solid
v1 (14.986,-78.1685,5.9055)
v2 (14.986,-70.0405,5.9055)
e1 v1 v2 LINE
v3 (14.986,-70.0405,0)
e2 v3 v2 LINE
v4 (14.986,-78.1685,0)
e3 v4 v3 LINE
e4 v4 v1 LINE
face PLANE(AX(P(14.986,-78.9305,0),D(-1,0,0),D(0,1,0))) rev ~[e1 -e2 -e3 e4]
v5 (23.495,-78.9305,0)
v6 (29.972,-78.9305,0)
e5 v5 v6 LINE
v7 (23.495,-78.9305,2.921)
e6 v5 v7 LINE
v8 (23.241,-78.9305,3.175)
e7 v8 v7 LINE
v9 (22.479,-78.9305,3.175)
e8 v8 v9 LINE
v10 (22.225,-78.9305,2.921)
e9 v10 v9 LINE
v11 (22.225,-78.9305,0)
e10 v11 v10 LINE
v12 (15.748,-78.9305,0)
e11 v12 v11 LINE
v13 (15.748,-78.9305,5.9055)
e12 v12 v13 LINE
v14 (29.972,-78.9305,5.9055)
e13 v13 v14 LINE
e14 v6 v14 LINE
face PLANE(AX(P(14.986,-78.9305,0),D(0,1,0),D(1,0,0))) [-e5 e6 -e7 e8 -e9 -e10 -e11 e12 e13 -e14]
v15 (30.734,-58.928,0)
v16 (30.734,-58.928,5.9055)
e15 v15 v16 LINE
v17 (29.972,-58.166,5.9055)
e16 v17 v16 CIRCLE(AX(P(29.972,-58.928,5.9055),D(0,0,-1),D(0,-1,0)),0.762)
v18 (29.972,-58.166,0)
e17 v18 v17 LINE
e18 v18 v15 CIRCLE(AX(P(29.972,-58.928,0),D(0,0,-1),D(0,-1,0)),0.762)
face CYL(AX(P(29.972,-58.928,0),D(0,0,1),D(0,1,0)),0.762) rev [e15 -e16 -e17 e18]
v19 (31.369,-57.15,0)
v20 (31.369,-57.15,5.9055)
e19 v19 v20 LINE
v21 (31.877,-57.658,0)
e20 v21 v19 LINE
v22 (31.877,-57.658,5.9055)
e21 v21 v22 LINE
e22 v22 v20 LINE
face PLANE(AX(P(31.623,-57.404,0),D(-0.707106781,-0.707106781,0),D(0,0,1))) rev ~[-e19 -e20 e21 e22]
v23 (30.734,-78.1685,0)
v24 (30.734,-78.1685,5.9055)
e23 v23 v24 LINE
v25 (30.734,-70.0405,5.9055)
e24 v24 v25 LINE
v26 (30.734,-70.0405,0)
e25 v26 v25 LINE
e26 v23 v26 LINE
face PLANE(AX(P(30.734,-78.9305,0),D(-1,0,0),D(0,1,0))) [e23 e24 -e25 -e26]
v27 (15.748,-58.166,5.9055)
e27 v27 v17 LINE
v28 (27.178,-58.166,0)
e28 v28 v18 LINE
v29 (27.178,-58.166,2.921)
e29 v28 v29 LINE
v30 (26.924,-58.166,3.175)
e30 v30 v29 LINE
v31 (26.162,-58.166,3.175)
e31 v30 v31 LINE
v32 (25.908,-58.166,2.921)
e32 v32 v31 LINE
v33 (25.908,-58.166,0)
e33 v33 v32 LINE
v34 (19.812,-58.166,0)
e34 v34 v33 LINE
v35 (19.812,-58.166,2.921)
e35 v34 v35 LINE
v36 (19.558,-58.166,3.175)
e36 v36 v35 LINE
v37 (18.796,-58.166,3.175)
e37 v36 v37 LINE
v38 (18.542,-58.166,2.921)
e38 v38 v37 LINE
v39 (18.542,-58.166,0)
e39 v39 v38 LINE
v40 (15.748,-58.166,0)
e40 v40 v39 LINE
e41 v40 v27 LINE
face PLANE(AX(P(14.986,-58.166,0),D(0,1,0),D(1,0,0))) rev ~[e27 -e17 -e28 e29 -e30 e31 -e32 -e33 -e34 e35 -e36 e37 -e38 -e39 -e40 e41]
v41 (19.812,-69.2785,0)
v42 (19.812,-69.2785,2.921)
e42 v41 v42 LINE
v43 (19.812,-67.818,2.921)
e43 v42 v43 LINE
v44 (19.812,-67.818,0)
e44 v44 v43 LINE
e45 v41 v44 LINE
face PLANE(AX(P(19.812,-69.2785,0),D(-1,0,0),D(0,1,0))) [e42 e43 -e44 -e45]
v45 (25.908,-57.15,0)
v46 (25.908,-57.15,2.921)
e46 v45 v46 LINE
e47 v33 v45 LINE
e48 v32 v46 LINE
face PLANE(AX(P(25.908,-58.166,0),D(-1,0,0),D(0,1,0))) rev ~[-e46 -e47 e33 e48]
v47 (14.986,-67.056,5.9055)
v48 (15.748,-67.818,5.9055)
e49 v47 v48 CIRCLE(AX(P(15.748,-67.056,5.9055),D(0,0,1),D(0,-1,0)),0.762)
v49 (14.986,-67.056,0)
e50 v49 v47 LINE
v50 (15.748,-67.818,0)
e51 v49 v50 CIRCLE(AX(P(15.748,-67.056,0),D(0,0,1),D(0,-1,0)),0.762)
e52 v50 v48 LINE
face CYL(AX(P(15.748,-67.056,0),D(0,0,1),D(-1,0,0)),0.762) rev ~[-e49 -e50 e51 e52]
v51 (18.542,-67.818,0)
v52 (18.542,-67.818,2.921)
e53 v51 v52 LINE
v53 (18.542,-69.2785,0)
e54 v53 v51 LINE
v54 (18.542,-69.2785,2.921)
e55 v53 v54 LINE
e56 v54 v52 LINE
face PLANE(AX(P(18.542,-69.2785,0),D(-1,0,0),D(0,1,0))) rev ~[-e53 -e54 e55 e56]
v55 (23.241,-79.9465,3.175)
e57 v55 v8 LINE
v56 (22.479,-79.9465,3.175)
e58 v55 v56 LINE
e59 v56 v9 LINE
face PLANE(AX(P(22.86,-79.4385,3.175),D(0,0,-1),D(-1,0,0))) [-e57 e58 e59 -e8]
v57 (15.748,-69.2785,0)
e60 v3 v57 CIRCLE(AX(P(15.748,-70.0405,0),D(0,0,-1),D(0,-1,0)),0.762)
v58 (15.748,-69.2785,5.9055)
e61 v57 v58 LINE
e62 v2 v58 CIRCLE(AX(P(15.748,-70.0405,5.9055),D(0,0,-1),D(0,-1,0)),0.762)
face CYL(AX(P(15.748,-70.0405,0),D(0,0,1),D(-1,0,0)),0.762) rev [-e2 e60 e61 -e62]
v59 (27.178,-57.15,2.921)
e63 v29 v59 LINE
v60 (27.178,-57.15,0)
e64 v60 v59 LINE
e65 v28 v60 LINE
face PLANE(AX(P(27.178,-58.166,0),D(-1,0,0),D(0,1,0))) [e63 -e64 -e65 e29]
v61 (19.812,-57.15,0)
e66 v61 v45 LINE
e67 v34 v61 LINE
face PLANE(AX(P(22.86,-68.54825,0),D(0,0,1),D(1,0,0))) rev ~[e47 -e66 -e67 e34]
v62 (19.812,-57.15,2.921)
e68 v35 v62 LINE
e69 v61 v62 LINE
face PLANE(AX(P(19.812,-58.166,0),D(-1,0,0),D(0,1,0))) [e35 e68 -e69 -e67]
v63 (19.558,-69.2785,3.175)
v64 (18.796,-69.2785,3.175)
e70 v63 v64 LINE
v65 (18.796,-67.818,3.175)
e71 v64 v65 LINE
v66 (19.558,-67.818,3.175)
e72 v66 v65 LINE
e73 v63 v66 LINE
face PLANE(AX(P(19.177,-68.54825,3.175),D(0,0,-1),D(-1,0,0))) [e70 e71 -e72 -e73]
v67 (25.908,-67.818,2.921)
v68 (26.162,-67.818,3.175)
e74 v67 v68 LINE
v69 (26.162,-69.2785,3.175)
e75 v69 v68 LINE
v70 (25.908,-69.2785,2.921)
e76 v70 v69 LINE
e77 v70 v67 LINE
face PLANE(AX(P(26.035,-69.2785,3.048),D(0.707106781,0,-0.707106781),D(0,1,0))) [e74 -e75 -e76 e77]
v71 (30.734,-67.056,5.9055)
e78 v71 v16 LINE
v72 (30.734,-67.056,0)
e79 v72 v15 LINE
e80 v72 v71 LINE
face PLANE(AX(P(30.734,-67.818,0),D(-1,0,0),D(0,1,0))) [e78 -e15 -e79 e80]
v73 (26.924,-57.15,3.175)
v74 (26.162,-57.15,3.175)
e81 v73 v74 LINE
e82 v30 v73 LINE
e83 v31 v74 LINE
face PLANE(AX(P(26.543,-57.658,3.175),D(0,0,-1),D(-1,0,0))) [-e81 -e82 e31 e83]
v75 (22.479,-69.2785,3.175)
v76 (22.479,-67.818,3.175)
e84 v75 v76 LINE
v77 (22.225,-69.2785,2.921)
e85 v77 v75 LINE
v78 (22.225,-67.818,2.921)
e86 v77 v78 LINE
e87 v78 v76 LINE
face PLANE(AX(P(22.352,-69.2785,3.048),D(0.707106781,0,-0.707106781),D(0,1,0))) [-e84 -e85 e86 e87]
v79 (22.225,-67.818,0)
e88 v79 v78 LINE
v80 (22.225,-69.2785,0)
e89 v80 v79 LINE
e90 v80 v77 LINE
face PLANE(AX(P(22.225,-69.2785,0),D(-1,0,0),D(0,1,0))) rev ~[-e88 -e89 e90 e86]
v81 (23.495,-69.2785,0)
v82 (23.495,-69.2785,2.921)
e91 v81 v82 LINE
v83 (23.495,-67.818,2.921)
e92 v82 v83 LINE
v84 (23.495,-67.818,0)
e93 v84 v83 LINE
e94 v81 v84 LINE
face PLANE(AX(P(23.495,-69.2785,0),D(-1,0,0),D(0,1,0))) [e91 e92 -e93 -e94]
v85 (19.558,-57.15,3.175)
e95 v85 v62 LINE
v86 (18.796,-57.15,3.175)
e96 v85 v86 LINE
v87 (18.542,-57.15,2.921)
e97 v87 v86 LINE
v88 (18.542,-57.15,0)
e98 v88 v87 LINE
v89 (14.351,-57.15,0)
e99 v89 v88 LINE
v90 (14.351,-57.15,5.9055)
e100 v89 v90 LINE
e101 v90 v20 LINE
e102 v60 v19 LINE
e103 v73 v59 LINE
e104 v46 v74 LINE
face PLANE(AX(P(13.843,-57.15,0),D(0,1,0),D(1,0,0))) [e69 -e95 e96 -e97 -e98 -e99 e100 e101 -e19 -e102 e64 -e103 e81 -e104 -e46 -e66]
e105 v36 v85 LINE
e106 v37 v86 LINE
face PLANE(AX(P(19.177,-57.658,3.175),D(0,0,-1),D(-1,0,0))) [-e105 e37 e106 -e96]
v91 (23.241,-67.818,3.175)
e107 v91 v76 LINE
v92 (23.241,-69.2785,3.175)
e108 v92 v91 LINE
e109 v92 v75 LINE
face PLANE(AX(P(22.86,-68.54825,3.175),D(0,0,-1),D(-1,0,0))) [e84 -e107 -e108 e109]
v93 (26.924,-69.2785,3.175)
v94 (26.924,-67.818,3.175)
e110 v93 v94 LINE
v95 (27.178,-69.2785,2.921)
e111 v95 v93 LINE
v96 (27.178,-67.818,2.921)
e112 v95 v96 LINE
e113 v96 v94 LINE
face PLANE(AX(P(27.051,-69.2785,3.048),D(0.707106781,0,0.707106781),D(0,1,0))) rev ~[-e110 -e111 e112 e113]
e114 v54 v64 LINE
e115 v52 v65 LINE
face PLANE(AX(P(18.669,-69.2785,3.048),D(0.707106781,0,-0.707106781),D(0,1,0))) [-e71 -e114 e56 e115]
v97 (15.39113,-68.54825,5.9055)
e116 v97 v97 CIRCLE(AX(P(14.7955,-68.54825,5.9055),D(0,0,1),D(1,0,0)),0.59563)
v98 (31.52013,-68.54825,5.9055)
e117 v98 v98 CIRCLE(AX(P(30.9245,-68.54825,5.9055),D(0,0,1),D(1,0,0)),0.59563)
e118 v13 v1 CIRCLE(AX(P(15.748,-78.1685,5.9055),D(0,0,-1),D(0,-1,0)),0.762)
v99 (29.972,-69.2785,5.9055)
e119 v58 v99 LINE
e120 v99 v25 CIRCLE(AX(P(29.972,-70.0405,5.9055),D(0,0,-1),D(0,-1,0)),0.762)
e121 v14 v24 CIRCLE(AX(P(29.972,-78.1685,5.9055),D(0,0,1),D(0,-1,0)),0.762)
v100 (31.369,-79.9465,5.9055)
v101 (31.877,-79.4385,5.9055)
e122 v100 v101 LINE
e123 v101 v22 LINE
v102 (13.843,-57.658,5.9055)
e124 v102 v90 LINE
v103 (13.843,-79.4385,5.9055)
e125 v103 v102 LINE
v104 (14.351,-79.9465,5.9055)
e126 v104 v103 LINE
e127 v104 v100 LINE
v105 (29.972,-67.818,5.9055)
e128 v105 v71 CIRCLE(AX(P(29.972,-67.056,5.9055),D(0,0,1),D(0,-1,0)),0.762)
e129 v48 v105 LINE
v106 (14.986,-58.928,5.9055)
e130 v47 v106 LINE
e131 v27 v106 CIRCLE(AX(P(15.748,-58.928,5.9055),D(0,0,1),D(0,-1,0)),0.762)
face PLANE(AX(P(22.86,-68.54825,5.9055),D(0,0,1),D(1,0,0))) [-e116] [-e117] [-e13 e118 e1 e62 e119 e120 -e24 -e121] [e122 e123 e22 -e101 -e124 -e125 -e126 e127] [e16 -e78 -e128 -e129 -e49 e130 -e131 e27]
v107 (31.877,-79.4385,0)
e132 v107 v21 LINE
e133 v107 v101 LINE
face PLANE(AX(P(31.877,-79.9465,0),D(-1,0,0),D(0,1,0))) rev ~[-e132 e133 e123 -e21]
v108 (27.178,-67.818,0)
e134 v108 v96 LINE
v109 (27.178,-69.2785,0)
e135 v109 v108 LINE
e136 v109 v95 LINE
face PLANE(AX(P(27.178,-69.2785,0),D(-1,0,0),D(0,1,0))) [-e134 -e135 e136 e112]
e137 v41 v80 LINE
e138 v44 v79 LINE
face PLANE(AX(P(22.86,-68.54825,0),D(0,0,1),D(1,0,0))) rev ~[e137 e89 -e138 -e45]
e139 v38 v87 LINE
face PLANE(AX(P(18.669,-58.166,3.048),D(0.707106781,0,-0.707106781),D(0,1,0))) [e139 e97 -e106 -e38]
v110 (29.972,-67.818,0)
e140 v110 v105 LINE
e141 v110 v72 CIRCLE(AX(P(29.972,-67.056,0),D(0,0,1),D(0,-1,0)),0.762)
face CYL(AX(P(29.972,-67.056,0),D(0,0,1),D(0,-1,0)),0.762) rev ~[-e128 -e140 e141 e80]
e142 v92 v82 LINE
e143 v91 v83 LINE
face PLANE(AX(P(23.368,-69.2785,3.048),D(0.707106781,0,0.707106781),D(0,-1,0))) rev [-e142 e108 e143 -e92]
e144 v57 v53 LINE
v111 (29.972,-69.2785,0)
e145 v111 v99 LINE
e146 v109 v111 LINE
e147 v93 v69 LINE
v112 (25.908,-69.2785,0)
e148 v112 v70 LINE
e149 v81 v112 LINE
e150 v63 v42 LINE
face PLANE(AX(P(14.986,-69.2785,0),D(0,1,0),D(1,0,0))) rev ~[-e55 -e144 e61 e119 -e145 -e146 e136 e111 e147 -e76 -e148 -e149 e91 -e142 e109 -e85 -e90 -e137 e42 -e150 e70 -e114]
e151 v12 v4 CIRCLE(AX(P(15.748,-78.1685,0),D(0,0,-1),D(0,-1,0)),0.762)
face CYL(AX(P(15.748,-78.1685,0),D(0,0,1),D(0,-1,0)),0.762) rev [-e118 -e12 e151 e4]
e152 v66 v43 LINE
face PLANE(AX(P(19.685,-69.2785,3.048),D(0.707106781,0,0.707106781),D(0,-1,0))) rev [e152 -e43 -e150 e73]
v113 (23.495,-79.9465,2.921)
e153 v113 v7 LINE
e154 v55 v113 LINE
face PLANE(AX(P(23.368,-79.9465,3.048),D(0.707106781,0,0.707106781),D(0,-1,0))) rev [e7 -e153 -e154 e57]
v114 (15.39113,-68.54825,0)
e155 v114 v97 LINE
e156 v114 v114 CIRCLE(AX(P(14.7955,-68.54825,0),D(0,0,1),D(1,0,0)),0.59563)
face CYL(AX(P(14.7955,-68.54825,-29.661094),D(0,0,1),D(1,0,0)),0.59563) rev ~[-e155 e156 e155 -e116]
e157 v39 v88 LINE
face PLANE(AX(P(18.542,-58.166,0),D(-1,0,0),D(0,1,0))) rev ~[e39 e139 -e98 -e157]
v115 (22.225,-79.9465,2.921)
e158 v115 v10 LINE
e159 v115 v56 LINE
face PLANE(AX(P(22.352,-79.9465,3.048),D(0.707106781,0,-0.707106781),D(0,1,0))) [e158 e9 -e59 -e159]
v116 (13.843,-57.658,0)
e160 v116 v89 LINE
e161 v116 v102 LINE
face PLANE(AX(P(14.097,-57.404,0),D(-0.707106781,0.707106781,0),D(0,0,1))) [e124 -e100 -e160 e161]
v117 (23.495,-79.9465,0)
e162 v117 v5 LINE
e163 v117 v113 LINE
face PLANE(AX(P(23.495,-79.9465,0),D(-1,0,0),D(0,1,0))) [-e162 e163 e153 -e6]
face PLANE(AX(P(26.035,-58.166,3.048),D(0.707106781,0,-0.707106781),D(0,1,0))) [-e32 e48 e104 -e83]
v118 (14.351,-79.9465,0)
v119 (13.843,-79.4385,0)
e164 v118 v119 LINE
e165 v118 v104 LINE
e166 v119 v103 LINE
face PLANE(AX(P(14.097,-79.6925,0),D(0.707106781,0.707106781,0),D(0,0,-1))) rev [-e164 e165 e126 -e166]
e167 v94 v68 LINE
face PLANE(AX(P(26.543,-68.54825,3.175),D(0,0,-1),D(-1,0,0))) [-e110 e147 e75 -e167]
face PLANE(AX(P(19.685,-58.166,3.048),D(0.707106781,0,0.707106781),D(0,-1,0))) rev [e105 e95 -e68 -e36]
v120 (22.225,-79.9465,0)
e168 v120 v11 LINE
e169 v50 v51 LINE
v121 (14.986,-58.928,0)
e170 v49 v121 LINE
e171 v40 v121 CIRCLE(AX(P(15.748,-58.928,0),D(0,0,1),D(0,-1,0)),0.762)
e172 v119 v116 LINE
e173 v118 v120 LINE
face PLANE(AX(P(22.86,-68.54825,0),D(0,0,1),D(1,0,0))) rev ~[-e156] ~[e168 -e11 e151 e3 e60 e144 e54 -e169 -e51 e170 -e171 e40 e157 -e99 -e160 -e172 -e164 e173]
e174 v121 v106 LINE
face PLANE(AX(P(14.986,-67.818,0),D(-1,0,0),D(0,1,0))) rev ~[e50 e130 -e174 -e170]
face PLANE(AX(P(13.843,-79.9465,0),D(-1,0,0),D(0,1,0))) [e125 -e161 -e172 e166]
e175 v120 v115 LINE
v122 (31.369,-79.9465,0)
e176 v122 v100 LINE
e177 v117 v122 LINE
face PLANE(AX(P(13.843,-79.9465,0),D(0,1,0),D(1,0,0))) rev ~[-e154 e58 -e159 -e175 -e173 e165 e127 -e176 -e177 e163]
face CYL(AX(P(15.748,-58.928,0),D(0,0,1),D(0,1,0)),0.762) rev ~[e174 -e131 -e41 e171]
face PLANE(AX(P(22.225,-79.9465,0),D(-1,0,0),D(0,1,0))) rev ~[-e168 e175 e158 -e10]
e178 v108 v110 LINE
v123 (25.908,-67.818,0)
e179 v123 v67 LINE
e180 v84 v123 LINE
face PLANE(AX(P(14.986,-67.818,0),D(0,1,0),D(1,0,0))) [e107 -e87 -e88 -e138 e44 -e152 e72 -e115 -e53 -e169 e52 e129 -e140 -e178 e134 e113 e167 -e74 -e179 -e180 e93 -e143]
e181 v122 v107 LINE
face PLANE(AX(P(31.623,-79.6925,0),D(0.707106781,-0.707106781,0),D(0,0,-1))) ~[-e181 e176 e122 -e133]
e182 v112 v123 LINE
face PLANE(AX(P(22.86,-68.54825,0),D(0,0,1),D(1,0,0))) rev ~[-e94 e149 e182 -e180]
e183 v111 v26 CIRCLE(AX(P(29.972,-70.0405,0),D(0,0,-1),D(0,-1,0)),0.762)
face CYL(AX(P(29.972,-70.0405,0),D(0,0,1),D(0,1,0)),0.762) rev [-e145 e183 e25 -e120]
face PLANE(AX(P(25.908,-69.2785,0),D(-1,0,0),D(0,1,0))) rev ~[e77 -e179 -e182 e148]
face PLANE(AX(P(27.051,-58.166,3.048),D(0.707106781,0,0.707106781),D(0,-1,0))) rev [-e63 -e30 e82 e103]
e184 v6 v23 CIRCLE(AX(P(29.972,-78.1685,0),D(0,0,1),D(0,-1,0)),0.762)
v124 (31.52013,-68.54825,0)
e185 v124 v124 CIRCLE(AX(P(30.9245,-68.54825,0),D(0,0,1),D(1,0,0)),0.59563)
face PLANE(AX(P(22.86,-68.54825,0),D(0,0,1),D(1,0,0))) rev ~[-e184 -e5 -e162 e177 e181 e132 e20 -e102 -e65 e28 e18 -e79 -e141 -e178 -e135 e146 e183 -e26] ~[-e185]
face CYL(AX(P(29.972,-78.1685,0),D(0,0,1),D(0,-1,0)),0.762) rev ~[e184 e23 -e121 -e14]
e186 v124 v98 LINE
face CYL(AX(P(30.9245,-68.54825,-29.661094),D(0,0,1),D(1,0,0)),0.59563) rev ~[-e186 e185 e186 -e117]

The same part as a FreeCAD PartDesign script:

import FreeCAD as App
import Part
import Sketcher
from FreeCAD import Vector
Q = App.Units.Quantity


def edges_at(feature, points):
    """Names of the edges that pass closest to the given points."""
    edges = feature.Shape.Edges
    near = lambda p: min(range(len(edges)), key=lambda i: edges[i].distToShape(Part.Vertex(*p))[0])
    return sorted({f"Edge{near(p) + 1}" for p in points})


def add_polygon(sketch, points):
    """Adds a closed chain of lines whose ends are joined by coincident constraints."""
    first, n = sketch.GeometryCount, len(points)
    for a, b in zip(points, points[1:] + points[:1]):
        sketch.addGeometry(Part.LineSegment(App.Vector(*a, 0), App.Vector(*b, 0)), False)
    for i in range(n):
        sketch.addConstraint(Sketcher.Constraint("Coincident", first + i, 2, first + (i + 1) % n, 1))

doc = App.newDocument("Part")
body = doc.addObject("PartDesign::Body", "Body")

sketch1 = doc.addObject("Sketcher::SketchObject", "Sketch")
body.addObject(sketch1)
sketch1.AttachmentSupport = (doc.XY_Plane, [""])
sketch1.MapMode = "FlatFace"
add_polygon(sketch1, [(14, -57), (14, -80), (32, -80), (32, -57)])
add_polygon(sketch1, [(31, -79), (15, -79), (15, -69), (31, -69)])
add_polygon(sketch1, [(31, -68), (15, -68), (15, -58), (31, -58)])
sketch1.addConstraint([
    Sketcher.Constraint("Vertical", 0),
    Sketcher.Constraint("Horizontal", 1),
    Sketcher.Constraint("Vertical", 2),
    Sketcher.Constraint("Horizontal", 3),
    Sketcher.Constraint("Horizontal", 4),
    Sketcher.Constraint("Vertical", 5),
    Sketcher.Constraint("Horizontal", 6),
    Sketcher.Constraint("Vertical", 7),
    Sketcher.Constraint("Horizontal", 8),
    Sketcher.Constraint("Vertical", 9),
    Sketcher.Constraint("Horizontal", 10),
    Sketcher.Constraint("Vertical", 11),
    Sketcher.Constraint("Vertical", 5, 2, 8, 2),
    Sketcher.Constraint("Vertical", 7, 2, 10, 2),
    Sketcher.Constraint("Equal", 7, 9),
    Sketcher.Constraint("DistanceX", 1, 1, 1, 2, Q("0.71 in")),
    Sketcher.Constraint("DistanceX", 4, 2, 4, 1, Q("0.62 in")),
    Sketcher.Constraint("DistanceY", 5, 1, 5, 2, Q("0.38 in")),
    Sketcher.Constraint("DistanceY", 2, 2, -1, 1, Q("2.25 in")),
    Sketcher.Constraint("DistanceX", -1, 1, 4, 2, Q("0.59 in")),
    Sketcher.Constraint("DistanceY", 8, 2, -1, 1, Q("2.67 in")),
    Sketcher.Constraint("DistanceY", 0, 2, 4, 2, Q("0.04 in")),
    Sketcher.Constraint("DistanceY", 0, 2, 0, 1, Q("0.8975 in")),
    Sketcher.Constraint("DistanceX", -1, 1, 0, 2, Q("0.545 in")),
])
pad1 = doc.addObject("PartDesign::Pad", "Pad")
body.addObject(pad1)
pad1.Profile = sketch1
pad1.Length = Q("0.2325 in")

sketch2 = doc.addObject("Sketcher::SketchObject", "Sketch001")
body.addObject(sketch2)
sketch2.AttachmentSupport = (doc.XY_Plane, [""])
sketch2.MapMode = "FlatFace"
add_polygon(sketch2, [(23.5, -78.9), (23.5, -79.9), (22.2, -79.9), (22.2, -78.9)])
add_polygon(sketch2, [(19.8, -57.1), (19.8, -58.2), (18.5, -58.2), (18.5, -57.1)])
add_polygon(sketch2, [(27.2, -57.1), (27.2, -58.2), (25.9, -58.2), (25.9, -57.1)])
add_polygon(sketch2, [(23.5, -67.8), (23.5, -69.3), (22.2, -69.3), (22.2, -67.8)])
add_polygon(sketch2, [(19.8, -67.8), (19.8, -69.3), (18.5, -69.3), (18.5, -67.8)])
add_polygon(sketch2, [(27.2, -67.8), (27.2, -69.3), (25.9, -69.3), (25.9, -67.8)])
sketch2.addConstraint([
    Sketcher.Constraint("Vertical", 0),
    Sketcher.Constraint("Horizontal", 1),
    Sketcher.Constraint("Vertical", 2),
    Sketcher.Constraint("Horizontal", 3),
    Sketcher.Constraint("Vertical", 4),
    Sketcher.Constraint("Horizontal", 5),
    Sketcher.Constraint("Vertical", 6),
    Sketcher.Constraint("Horizontal", 7),
    Sketcher.Constraint("Vertical", 8),
    Sketcher.Constraint("Horizontal", 9),
    Sketcher.Constraint("Vertical", 10),
    Sketcher.Constraint("Horizontal", 11),
    Sketcher.Constraint("Vertical", 12),
    Sketcher.Constraint("Horizontal", 13),
    Sketcher.Constraint("Vertical", 14),
    Sketcher.Constraint("Horizontal", 15),
    Sketcher.Constraint("Vertical", 16),
    Sketcher.Constraint("Horizontal", 17),
    Sketcher.Constraint("Vertical", 18),
    Sketcher.Constraint("Horizontal", 19),
    Sketcher.Constraint("Vertical", 20),
    Sketcher.Constraint("Horizontal", 21),
    Sketcher.Constraint("Vertical", 22),
    Sketcher.Constraint("Horizontal", 23),
    Sketcher.Constraint("Horizontal", 5, 2, 8, 2),
    Sketcher.Constraint("Horizontal", 7, 2, 10, 2),
    Sketcher.Constraint("Horizontal", 13, 2, 16, 2),
    Sketcher.Constraint("Horizontal", 15, 2, 18, 2),
    Sketcher.Constraint("Horizontal", 17, 2, 20, 2),
    Sketcher.Constraint("Horizontal", 19, 2, 22, 2),
    Sketcher.Constraint("Vertical", 3, 2, 12, 2),
    Sketcher.Constraint("Vertical", 2, 2, 13, 2),
    Sketcher.Constraint("Vertical", 7, 2, 16, 2),
    Sketcher.Constraint("Vertical", 6, 2, 17, 2),
    Sketcher.Constraint("Vertical", 11, 2, 20, 2),
    Sketcher.Constraint("Vertical", 10, 2, 21, 2),
    Sketcher.Constraint("Equal", 3, 5),
    Sketcher.Constraint("Equal", 7, 9),
    Sketcher.Constraint("Equal", 2, 4),
    Sketcher.Constraint("DistanceX", 1, 2, 1, 1, Q("0.05 in")),
    Sketcher.Constraint("DistanceY", 0, 2, 0, 1, Q("0.04 in")),
    Sketcher.Constraint("DistanceX", -1, 1, 4, 2, Q("0.78 in")),
    Sketcher.Constraint("DistanceY", 4, 2, -1, 1, Q("2.29 in")),
    Sketcher.Constraint("DistanceX", -1, 1, 8, 2, Q("1.07 in")),
    Sketcher.Constraint("DistanceY", 14, 2, -1, 1, Q("2.67 in")),
    Sketcher.Constraint("DistanceY", 3, 2, 12, 2, Q("0.38 in")),
    Sketcher.Constraint("DistanceY", 12, 2, 12, 1, Q("0.0575 in")),
    Sketcher.Constraint("DistanceX", -1, 1, 0, 2, Q("0.925 in")),
])
pocket1 = doc.addObject("PartDesign::Pocket", "Pocket")
body.addObject(pocket1)
pocket1.Profile = sketch2
pocket1.Length = Q("0.125 in")
pocket1.Reversed = True
doc.recompute()

chamfer = doc.addObject("PartDesign::Chamfer", "Chamfer")
body.addObject(chamfer)
chamfer.Base = (pocket1, edges_at(pocket1, [
    (22.225, -68.548, 3.175),
    (23.495, -68.548, 3.175),
    (25.908, -68.548, 3.175),
    (27.178, -68.548, 3.175),
    (23.495, -79.439, 3.175),
    (22.225, -79.439, 3.175),
    (19.812, -57.658, 3.175),
    (18.542, -57.658, 3.175),
    (27.178, -57.658, 3.175),
    (25.908, -57.658, 3.175),
    (18.542, -68.548, 3.175),
    (19.812, -68.548, 3.175),
]))
chamfer.Size = Q("0.01 in")
doc.recompute()

chamfer2 = doc.addObject("PartDesign::Chamfer", "Chamfer001")
body.addObject(chamfer2)
chamfer2.Base = (chamfer, edges_at(chamfer, [
    (31.877, -57.15, 2.953),
    (31.877, -79.947, 2.953),
    (13.843, -79.947, 2.953),
    (13.843, -57.15, 2.953),
]))
chamfer2.Size = Q("0.02 in")
doc.recompute()

fillet = doc.addObject("PartDesign::Fillet", "Fillet")
body.addObject(fillet)
fillet.Base = (chamfer2, edges_at(chamfer2, [
    (30.734, -67.818, 2.953),
    (30.734, -58.166, 2.953),
    (14.986, -78.93, 2.953),
    (30.734, -78.93, 2.953),
    (14.986, -58.166, 2.953),
    (14.986, -67.818, 2.953),
    (30.734, -69.278, 2.953),
    (14.986, -69.278, 2.953),
]))
fillet.Radius = Q("0.03 in")

sketch3 = doc.addObject("Sketcher::SketchObject", "Sketch002")
body.addObject(sketch3)
sketch3.AttachmentSupport = (doc.XY_Plane, [""])
sketch3.MapMode = "FlatFace"
sketch3.addGeometry([
    Part.Circle(Vector(30.9, -68.5, 0), Vector(0, 0, 1), 0.6),
    Part.Circle(Vector(14.8, -68.5, 0), Vector(0, 0, 1), 0.6),
], False)
sketch3.addConstraint([
    Sketcher.Constraint("Equal", 0, 1),
    Sketcher.Constraint("Horizontal", 0, 3, 1, 3),
    Sketcher.Constraint("Diameter", 0, Q("0.0469 in")),
    Sketcher.Constraint("DistanceX", 1, 3, 0, 3, Q("0.635 in")),
    Sketcher.Constraint("DistanceX", -1, 1, 0, 3, Q("1.2175 in")),
    Sketcher.Constraint("DistanceY", 0, 3, -1, 1, Q("68.54825 mm")),
])
doc.recompute()
hole = doc.addObject("PartDesign::Hole", "Hole")
body.addObject(hole)
hole.Profile = sketch3
hole.ThreadType = "None"
hole.Diameter = Q("0.0469 in")
hole.DepthType = "ThroughAll"
hole.Reversed = True

doc.recompute()
